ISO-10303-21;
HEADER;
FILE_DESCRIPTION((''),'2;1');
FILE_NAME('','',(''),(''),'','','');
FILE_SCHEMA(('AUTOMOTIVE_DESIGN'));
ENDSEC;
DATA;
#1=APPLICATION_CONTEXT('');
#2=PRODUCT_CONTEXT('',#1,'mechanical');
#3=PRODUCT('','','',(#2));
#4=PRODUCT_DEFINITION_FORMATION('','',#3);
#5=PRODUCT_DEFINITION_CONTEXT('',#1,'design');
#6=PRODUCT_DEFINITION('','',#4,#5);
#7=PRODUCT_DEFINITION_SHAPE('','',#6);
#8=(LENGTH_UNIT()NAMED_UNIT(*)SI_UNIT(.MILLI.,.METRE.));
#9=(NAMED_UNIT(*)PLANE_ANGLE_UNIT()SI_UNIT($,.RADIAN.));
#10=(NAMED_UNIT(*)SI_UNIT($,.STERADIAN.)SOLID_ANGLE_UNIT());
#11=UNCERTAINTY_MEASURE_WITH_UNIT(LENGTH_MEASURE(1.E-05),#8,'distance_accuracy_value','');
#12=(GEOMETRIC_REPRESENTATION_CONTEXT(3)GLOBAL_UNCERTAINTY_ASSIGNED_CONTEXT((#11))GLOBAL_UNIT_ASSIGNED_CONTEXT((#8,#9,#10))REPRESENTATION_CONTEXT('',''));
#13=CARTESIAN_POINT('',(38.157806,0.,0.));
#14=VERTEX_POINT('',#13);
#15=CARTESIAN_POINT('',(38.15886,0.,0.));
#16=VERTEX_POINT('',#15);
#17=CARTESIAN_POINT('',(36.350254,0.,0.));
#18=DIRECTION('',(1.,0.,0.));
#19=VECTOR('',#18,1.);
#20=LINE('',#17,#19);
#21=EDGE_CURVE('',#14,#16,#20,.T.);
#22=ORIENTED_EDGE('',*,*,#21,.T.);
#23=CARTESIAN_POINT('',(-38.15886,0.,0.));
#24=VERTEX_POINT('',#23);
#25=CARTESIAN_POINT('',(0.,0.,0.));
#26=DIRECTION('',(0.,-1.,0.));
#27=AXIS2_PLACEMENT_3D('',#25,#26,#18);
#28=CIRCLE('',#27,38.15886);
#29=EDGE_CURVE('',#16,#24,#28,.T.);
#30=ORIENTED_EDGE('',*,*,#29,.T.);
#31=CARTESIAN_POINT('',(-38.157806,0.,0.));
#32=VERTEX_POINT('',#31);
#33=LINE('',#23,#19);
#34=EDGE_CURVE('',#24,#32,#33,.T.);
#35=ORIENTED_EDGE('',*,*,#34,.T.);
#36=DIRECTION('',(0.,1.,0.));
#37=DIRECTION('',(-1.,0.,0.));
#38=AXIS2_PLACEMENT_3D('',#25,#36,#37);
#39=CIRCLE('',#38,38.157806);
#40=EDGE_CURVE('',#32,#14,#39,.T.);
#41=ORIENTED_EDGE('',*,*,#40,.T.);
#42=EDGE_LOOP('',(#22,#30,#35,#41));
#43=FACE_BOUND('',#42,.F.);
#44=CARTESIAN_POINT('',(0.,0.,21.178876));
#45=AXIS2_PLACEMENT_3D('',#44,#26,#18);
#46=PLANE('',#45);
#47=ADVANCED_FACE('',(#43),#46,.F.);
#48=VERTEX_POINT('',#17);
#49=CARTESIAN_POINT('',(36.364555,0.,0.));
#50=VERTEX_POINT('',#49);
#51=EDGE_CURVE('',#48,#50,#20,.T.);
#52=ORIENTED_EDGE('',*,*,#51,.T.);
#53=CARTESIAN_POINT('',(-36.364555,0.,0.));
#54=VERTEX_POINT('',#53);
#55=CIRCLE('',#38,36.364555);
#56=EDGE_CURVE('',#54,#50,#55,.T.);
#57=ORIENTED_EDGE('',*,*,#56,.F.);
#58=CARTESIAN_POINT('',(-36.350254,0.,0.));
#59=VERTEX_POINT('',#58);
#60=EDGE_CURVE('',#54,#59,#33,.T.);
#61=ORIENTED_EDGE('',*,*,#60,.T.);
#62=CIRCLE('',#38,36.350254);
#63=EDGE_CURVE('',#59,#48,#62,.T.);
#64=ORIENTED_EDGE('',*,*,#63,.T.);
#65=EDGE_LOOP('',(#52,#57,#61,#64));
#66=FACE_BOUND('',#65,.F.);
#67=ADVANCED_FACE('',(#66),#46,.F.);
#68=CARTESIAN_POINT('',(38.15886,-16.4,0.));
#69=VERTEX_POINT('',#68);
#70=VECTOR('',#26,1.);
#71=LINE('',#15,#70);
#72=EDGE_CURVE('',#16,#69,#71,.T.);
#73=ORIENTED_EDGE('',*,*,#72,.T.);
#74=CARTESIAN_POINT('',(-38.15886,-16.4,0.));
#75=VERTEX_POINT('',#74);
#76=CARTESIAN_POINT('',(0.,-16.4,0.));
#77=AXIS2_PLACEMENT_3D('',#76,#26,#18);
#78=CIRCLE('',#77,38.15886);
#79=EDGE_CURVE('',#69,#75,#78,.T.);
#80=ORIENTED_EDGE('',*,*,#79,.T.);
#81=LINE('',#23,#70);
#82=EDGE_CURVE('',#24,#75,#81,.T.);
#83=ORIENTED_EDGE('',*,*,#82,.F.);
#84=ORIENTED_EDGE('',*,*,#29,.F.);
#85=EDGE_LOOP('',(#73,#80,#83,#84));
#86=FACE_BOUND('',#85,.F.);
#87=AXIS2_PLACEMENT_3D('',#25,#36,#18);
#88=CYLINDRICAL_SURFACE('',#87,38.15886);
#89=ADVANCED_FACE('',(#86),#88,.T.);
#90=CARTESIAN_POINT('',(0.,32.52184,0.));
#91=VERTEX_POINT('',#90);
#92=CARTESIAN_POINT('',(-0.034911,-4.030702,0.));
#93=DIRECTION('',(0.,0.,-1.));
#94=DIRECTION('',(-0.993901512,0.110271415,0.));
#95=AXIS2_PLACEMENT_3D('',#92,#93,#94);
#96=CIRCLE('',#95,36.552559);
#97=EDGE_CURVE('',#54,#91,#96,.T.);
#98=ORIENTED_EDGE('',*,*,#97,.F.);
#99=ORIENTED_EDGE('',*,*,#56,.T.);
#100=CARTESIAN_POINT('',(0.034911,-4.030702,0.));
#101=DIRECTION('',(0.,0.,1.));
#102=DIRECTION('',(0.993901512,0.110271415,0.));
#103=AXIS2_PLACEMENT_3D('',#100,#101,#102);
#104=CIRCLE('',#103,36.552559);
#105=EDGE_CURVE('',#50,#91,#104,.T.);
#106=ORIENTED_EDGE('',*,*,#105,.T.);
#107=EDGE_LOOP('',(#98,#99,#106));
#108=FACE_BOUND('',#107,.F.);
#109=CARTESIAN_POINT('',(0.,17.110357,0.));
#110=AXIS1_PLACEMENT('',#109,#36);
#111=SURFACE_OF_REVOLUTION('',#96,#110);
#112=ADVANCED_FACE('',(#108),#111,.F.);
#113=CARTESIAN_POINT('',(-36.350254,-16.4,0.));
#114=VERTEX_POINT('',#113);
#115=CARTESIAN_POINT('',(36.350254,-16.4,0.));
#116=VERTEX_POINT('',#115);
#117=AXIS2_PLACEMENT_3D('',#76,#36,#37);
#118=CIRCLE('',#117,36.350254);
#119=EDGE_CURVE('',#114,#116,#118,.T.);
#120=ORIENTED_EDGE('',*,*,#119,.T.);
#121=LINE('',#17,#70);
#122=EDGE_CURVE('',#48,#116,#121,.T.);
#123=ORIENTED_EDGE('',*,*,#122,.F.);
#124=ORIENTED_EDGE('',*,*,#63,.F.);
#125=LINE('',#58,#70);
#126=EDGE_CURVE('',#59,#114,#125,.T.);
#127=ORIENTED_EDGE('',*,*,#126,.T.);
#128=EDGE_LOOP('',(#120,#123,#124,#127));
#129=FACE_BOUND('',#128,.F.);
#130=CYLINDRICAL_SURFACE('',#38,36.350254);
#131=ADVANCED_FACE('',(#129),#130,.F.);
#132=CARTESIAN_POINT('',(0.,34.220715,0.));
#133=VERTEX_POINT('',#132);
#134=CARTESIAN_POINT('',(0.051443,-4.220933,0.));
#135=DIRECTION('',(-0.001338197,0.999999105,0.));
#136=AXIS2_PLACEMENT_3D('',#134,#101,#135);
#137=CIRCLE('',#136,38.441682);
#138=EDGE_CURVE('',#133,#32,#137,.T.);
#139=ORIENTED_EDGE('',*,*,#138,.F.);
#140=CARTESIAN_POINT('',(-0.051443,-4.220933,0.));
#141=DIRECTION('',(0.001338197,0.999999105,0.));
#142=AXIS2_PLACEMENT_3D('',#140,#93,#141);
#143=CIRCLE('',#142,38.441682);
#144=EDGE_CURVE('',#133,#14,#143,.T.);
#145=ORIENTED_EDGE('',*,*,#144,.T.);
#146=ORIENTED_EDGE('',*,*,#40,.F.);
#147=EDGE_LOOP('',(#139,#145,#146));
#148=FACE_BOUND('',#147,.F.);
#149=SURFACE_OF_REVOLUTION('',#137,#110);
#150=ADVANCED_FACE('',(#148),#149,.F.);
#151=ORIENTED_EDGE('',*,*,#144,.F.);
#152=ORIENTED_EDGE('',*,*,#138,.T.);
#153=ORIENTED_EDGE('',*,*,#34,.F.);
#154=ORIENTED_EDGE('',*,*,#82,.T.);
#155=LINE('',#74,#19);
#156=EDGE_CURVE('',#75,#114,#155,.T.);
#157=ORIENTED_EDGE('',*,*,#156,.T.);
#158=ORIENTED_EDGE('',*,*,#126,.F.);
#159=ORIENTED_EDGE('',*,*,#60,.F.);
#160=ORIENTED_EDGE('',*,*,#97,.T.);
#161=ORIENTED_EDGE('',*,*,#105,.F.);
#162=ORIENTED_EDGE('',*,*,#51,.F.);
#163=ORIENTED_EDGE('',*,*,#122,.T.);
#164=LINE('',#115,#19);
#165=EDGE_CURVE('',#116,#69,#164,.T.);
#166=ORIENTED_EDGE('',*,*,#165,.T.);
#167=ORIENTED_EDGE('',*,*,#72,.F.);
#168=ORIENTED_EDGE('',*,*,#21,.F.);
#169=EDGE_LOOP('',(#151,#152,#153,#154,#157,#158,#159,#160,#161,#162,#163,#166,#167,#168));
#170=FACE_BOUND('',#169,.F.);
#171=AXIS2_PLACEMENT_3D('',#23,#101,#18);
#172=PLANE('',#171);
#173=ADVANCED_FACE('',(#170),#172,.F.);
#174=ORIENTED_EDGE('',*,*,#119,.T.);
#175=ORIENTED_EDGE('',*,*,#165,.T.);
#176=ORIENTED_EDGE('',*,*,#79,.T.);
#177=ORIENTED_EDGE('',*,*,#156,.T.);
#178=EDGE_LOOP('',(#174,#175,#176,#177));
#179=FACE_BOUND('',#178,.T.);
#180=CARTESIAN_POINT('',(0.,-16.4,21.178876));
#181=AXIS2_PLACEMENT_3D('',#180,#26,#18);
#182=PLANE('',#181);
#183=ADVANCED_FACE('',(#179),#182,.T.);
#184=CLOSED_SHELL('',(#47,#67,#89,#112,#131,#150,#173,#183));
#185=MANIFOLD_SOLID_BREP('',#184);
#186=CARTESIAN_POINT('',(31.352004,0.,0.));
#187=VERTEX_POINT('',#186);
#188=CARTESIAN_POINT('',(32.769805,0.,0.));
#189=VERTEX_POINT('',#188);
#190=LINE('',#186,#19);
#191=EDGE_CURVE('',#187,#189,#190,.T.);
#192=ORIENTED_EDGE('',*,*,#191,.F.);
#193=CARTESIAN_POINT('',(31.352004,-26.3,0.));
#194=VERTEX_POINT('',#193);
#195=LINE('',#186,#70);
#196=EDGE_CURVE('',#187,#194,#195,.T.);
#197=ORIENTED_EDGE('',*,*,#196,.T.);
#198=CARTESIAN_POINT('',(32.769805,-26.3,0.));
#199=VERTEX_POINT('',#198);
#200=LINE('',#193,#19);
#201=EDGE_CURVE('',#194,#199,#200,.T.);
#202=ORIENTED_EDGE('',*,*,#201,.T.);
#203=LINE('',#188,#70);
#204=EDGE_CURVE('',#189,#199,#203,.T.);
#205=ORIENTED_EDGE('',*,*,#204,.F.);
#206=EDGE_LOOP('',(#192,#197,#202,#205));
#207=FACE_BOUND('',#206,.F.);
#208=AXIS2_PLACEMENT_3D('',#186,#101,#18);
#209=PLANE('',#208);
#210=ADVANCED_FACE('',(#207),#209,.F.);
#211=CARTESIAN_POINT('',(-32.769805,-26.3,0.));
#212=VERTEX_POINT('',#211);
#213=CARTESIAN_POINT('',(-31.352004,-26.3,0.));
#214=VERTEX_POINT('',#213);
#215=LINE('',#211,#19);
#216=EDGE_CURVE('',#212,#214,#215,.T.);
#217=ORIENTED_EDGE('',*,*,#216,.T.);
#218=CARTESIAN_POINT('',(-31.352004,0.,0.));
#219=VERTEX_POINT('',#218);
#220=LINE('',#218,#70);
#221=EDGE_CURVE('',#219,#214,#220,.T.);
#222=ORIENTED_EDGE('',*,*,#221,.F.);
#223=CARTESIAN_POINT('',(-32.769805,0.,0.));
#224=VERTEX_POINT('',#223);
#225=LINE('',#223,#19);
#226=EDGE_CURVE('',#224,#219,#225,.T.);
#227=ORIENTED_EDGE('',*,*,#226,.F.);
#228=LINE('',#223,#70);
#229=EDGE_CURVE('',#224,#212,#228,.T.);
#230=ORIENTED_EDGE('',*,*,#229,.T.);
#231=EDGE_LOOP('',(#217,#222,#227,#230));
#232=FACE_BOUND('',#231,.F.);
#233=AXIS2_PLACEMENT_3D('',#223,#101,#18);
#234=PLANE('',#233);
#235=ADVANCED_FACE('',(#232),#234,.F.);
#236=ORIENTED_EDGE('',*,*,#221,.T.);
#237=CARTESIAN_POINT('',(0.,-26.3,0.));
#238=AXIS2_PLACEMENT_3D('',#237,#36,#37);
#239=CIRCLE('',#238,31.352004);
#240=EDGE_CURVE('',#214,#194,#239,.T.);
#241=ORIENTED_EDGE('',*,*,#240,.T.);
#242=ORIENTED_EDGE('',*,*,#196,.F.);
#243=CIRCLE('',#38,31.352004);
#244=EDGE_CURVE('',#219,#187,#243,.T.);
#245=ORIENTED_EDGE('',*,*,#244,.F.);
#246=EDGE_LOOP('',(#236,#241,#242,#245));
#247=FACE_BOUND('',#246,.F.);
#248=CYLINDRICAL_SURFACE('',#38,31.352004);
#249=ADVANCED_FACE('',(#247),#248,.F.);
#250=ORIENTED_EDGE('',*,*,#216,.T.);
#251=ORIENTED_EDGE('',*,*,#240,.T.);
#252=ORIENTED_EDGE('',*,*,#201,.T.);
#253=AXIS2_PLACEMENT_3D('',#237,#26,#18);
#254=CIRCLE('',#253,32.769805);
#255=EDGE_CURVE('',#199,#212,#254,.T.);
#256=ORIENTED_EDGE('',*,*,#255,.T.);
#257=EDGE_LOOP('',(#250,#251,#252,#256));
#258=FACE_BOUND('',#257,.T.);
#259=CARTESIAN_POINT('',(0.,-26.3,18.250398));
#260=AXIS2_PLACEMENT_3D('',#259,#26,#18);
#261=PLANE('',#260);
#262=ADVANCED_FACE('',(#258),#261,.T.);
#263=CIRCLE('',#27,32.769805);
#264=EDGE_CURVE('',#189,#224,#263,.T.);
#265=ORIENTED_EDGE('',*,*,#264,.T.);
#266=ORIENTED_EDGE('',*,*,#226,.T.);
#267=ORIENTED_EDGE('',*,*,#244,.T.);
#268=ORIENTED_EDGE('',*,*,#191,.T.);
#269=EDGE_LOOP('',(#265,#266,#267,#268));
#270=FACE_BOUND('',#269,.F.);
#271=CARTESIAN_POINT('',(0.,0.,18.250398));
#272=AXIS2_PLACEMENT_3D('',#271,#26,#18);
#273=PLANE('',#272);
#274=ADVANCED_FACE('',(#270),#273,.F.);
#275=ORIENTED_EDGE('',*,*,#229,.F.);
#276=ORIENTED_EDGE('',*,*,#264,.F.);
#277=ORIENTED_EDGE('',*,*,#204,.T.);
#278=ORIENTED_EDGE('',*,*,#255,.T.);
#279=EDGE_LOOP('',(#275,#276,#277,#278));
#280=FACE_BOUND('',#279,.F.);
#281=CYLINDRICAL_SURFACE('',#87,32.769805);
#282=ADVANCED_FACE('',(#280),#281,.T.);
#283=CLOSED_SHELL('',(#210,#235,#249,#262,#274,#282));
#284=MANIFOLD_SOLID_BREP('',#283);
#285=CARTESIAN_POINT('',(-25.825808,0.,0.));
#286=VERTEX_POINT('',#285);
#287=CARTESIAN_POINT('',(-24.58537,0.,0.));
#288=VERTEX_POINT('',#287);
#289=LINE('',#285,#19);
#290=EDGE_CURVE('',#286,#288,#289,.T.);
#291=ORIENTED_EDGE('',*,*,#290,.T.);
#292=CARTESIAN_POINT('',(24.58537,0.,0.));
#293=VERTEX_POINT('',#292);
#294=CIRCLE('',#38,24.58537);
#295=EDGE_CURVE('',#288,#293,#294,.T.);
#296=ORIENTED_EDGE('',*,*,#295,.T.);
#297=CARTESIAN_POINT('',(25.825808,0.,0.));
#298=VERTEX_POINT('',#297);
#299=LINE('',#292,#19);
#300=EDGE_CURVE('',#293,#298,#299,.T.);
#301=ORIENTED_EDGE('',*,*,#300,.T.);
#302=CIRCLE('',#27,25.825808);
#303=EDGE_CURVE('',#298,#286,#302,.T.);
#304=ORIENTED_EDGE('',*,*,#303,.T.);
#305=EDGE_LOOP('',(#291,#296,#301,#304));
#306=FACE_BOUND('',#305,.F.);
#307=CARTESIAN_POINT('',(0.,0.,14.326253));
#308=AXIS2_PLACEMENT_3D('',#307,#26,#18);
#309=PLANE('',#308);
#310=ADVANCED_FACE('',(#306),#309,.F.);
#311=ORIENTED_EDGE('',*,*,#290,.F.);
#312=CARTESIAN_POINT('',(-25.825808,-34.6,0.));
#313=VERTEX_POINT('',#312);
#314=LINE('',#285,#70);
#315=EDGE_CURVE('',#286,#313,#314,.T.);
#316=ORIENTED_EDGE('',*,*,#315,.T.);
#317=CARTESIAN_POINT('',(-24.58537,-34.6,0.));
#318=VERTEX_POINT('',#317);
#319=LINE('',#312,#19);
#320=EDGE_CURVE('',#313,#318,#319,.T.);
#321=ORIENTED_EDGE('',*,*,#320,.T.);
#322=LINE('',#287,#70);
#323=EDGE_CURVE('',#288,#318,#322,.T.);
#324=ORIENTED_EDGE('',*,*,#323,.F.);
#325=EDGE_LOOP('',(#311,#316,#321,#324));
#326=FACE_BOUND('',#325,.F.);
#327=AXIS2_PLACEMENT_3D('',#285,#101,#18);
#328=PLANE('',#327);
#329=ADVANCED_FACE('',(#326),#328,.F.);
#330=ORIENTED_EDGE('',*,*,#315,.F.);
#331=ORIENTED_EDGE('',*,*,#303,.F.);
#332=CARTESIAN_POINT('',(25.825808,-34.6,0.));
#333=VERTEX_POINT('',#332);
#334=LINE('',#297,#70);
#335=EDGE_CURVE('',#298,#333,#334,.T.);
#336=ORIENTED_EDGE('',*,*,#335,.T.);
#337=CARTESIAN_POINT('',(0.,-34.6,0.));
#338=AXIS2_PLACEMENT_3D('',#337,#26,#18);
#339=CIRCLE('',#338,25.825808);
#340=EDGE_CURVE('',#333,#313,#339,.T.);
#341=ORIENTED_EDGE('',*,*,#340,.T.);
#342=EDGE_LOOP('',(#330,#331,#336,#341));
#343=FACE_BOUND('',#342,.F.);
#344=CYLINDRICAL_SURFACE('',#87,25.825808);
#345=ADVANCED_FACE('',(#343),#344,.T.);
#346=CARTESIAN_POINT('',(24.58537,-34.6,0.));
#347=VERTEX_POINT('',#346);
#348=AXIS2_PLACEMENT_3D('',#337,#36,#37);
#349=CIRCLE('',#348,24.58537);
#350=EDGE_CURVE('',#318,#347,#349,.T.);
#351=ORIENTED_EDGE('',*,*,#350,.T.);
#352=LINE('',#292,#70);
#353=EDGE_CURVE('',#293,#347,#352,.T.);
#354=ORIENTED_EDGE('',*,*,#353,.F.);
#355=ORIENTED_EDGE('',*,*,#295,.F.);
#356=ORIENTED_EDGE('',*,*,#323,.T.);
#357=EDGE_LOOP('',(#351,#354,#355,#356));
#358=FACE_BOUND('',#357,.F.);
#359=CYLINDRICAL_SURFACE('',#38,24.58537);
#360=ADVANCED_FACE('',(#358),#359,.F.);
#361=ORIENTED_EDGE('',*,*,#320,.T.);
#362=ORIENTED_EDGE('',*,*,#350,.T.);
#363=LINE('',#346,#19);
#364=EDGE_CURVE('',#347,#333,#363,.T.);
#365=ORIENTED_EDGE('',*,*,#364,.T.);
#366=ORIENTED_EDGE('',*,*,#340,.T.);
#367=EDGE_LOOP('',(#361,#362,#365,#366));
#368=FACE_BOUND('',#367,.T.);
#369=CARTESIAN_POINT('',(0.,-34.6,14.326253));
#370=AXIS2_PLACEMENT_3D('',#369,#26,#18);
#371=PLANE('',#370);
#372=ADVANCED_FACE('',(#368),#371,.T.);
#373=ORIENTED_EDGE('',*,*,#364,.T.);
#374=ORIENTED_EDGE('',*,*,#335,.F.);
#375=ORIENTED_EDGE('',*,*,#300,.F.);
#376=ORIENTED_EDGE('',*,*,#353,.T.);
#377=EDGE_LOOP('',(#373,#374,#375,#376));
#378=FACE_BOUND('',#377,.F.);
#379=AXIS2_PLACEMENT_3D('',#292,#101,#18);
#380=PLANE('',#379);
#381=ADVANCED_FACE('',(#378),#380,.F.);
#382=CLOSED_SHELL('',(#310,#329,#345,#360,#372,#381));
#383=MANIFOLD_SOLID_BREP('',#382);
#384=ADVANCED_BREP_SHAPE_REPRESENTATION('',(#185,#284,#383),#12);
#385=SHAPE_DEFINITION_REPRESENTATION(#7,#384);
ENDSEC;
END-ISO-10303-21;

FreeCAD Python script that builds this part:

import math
import FreeCAD as App
import Part
import Sketcher
from FreeCAD import Vector
Q = App.Units.Quantity

doc = App.newDocument("Part")
body = doc.addObject("PartDesign::Body", "Body")

# Sketch on XZ plane
sketch1 = body.newObject("Sketcher::SketchObject", "Sketch")
sketch1.AttachmentSupport = (doc.getObject("XZ_Plane"), [""])
sketch1.MapMode = "FlatFace"
sketch1.addGeometry([
    Part.ArcOfCircle(Part.Circle(Vector(0, 0, 0), Vector(0, 0, 1), 24.6), math.radians(0), math.radians(180)),
    Part.LineSegment(Vector(24.6, 0, 0), Vector(25.8, 0, 0)),
    Part.ArcOfCircle(Part.Circle(Vector(0, 0, 0), Vector(0, 0, 1), 25.8), math.radians(0), math.radians(180)),
    Part.LineSegment(Vector(-25.8, 0, 0), Vector(-24.6, 0, 0)),
], False)
sketch1.addConstraint([
    Sketcher.Constraint("Coincident", 0, 1, 1, 1),
    Sketcher.Constraint("Coincident", 1, 2, 2, 1),
    Sketcher.Constraint("Coincident", 2, 2, 3, 1),
    Sketcher.Constraint("Coincident", 3, 2, 0, 2),
    Sketcher.Constraint("Horizontal", 1),
    Sketcher.Constraint("Horizontal", 3),
    Sketcher.Constraint("Coincident", 0, 3, -1, 1),
    Sketcher.Constraint("Coincident", 2, 3, -1, 1),
    Sketcher.Constraint("PointOnObject", 0, 1, -1),
    Sketcher.Constraint("PointOnObject", 2, 2, -1),
    Sketcher.Constraint("Radius", 0, Q("24.58537 mm")),
    Sketcher.Constraint("Radius", 2, Q("25.825808 mm")),
])
pad1 = body.newObject("PartDesign::Pad", "Pad")
pad1.Profile = sketch1
pad1.Length = 34.6
body2 = doc.addObject("PartDesign::Body", "Body001")

# Sketch on XZ plane
sketch2 = body2.newObject("Sketcher::SketchObject", "Sketch001")
sketch2.AttachmentSupport = (doc.getObject("XZ_Plane001"), [""])
sketch2.MapMode = "FlatFace"
sketch2.addGeometry([
    Part.ArcOfCircle(Part.Circle(Vector(0, 0, 0), Vector(0, 0, 1), 31.4), math.radians(0), math.radians(180)),
    Part.LineSegment(Vector(31.4, 0, 0), Vector(32.8, 0, 0)),
    Part.ArcOfCircle(Part.Circle(Vector(0, 0, 0), Vector(0, 0, 1), 32.8), math.radians(0), math.radians(180)),
    Part.LineSegment(Vector(-32.8, 0, 0), Vector(-31.4, 0, 0)),
], False)
sketch2.addConstraint([
    Sketcher.Constraint("Coincident", 0, 1, 1, 1),
    Sketcher.Constraint("Coincident", 1, 2, 2, 1),
    Sketcher.Constraint("Coincident", 2, 2, 3, 1),
    Sketcher.Constraint("Coincident", 3, 2, 0, 2),
    Sketcher.Constraint("Horizontal", 1),
    Sketcher.Constraint("Horizontal", 3),
    Sketcher.Constraint("Coincident", 0, 3, -1, 1),
    Sketcher.Constraint("Coincident", 2, 3, -1, 1),
    Sketcher.Constraint("PointOnObject", 0, 1, -1),
    Sketcher.Constraint("PointOnObject", 2, 2, -1),
    Sketcher.Constraint("DistanceX", 1, 1, 1, 2, Q("1.417801 mm")),
    Sketcher.Constraint("Radius", 0, Q("31.352004 mm")),
])
pad2 = body2.newObject("PartDesign::Pad", "Pad001")
pad2.Profile = sketch2
pad2.Length = 26.3
body3 = doc.addObject("PartDesign::Body", "Body002")

# Sketch on XZ plane
sketch3 = body3.newObject("Sketcher::SketchObject", "Sketch002")
sketch3.AttachmentSupport = (doc.getObject("XZ_Plane002"), [""])
sketch3.MapMode = "FlatFace"
sketch3.addGeometry([
    Part.ArcOfCircle(Part.Circle(Vector(0, 0, 0), Vector(0, 0, 1), 36.4), math.radians(0), math.radians(180)),
    Part.LineSegment(Vector(36.4, 0, 0), Vector(38.2, 0, 0)),
    Part.ArcOfCircle(Part.Circle(Vector(0, 0, 0), Vector(0, 0, 1), 38.2), math.radians(0), math.radians(180)),
    Part.LineSegment(Vector(-38.2, 0, 0), Vector(-36.4, 0, 0)),
], False)
sketch3.addConstraint([
    Sketcher.Constraint("Coincident", 0, 1, 1, 1),
    Sketcher.Constraint("Coincident", 1, 2, 2, 1),
    Sketcher.Constraint("Coincident", 2, 2, 3, 1),
    Sketcher.Constraint("Coincident", 3, 2, 0, 2),
    Sketcher.Constraint("Horizontal", 1),
    Sketcher.Constraint("Horizontal", 3),
    Sketcher.Constraint("Coincident", 0, 3, -1, 1),
    Sketcher.Constraint("Coincident", 2, 3, -1, 1),
    Sketcher.Constraint("PointOnObject", 0, 1, -1),
    Sketcher.Constraint("PointOnObject", 2, 2, -1),
    Sketcher.Constraint("Radius", 2, Q("38.15886 mm")),
    Sketcher.Constraint("Radius", 0, Q("36.350254 mm")),
])
pad3 = body3.newObject("PartDesign::Pad", "Pad002")
pad3.Profile = sketch3
pad3.Length = 16.4

# Sketch on XY plane
sketch4 = body3.newObject("Sketcher::SketchObject", "Sketch003")
sketch4.AttachmentSupport = (doc.getObject("XY_Plane002"), [""])
sketch4.MapMode = "FlatFace"
sketch4.addGeometry([
    Part.LineSegment(Vector(0, 32.5, 0), Vector(0, 34.2, 0)),
    Part.ArcOfCircle(Part.Circle(Vector(0.1, -4.2, 0), Vector(0, 0, 1), 38.4), math.radians(90), math.radians(174)),
    Part.LineSegment(Vector(-38.2, 0, 0), Vector(-36.4, 0, 0)),
    Part.ArcOfCircle(Part.Circle(Vector(0, -4, 0), Vector(0, 0, 1), 36.6), math.radians(90), math.radians(174)),
], False)
sketch4.addConstraint([
    Sketcher.Constraint("Coincident", 0, 2, 1, 1),
    Sketcher.Constraint("Coincident", 1, 2, 2, 1),
    Sketcher.Constraint("Coincident", 2, 2, 3, 2),
    Sketcher.Constraint("Coincident", 3, 1, 0, 1),
    Sketcher.Constraint("Vertical", 0),
    Sketcher.Constraint("Horizontal", 2),
    Sketcher.Constraint("PointOnObject", 0, 2, -2),
    Sketcher.Constraint("PointOnObject", 1, 2, -1),
    Sketcher.Constraint("Radius", 3, Q("36.552559 mm")),
    Sketcher.Constraint("Radius", 1, Q("38.441682 mm")),
    Sketcher.Constraint("DistanceX", 2, 1, 2, 2, Q("1.793251 mm")),
    Sketcher.Constraint("DistanceY", 0, 1, 0, 2, Q("1.698875 mm")),
    Sketcher.Constraint("DistanceX", 3, 3, -1, 1, Q("0.034911 mm")),
    Sketcher.Constraint("DistanceY", -1, 1, 3, 1, Q("32.52184 mm")),
])
revolution = body3.newObject("PartDesign::Revolution", "Revolution")
revolution.Profile = sketch4
revolution.ReferenceAxis = (sketch4, ["V_Axis"])
revolution.Angle = 180

doc.recompute()
